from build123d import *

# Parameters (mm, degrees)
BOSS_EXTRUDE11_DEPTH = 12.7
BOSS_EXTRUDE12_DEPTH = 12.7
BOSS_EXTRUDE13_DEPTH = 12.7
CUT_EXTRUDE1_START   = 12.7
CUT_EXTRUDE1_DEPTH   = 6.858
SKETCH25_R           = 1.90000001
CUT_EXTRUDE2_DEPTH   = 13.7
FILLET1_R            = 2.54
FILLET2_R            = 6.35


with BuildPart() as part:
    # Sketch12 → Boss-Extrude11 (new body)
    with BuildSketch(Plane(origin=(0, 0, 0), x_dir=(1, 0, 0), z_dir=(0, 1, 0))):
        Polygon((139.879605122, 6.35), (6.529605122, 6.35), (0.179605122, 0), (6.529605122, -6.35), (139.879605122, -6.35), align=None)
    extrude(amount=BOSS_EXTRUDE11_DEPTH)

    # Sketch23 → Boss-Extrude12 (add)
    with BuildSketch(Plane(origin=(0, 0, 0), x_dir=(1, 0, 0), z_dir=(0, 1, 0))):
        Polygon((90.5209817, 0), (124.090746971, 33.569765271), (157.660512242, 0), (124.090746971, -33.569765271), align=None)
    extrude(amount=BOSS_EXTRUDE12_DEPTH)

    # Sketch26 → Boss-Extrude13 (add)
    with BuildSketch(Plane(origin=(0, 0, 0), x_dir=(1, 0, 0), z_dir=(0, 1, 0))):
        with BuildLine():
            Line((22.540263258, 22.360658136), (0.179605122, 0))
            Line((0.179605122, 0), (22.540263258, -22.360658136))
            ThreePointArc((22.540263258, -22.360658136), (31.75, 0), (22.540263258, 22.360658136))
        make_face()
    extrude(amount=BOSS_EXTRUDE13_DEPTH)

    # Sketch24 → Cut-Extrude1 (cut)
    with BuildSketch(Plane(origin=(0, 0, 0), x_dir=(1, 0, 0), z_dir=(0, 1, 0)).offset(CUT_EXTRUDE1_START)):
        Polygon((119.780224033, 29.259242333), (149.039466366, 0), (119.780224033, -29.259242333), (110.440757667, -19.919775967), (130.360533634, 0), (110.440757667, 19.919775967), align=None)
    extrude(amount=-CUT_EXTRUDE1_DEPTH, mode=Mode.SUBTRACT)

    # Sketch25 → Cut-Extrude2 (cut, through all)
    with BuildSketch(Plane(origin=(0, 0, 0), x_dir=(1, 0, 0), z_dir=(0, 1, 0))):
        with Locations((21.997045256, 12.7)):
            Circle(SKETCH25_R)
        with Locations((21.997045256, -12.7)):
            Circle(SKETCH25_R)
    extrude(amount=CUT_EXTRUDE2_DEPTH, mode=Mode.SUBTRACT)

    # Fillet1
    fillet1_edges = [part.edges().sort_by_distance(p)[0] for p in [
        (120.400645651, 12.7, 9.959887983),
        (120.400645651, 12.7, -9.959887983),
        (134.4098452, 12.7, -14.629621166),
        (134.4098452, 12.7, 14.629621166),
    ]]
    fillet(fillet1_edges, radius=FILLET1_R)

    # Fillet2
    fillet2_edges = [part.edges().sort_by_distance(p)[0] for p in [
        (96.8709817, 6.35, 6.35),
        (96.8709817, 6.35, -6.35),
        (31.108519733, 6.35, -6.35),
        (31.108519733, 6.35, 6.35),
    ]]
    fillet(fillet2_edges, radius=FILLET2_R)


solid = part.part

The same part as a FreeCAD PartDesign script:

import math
import FreeCAD as App
import Part
import Sketcher
Q = App.Units.Quantity


def edges_at(feature, points):
    """Names of the edges that pass closest to the given points."""
    edges = feature.Shape.Edges
    near = lambda p: min(range(len(edges)), key=lambda i: edges[i].distToShape(Part.Vertex(*p))[0])
    return sorted({f"Edge{near(p) + 1}" for p in points})

doc = App.newDocument("Part")
body = doc.addObject("PartDesign::Body", "Body")

# Sketch on XZ plane
sketch1 = body.newObject("Sketcher::SketchObject", "Sketch")
sketch1.AttachmentSupport = (doc.getObject("XZ_Plane"), [""])
sketch1.MapMode = "FlatFace"
sketch1.addGeometry(Part.LineSegment(App.Vector(140, -6, 0), App.Vector(7, -6, 0)), False)
sketch1.addGeometry(Part.LineSegment(App.Vector(7, -6, 0), App.Vector(0, 0, 0)), False)
sketch1.addGeometry(Part.LineSegment(App.Vector(0, 0, 0), App.Vector(7, 6, 0)), False)
sketch1.addGeometry(Part.LineSegment(App.Vector(7, 6, 0), App.Vector(140, 6, 0)), False)
sketch1.addGeometry(Part.LineSegment(App.Vector(140, 6, 0), App.Vector(140, -6, 0)), False)
sketch1.addConstraint(Sketcher.Constraint("Coincident", 0, 2, 1, 1))
sketch1.addConstraint(Sketcher.Constraint("Coincident", 1, 2, 2, 1))
sketch1.addConstraint(Sketcher.Constraint("Coincident", 2, 2, 3, 1))
sketch1.addConstraint(Sketcher.Constraint("Coincident", 3, 2, 4, 1))
sketch1.addConstraint(Sketcher.Constraint("Coincident", 4, 2, 0, 1))
sketch1.addConstraint(Sketcher.Constraint("Horizontal", 0))
sketch1.addConstraint(Sketcher.Constraint("Horizontal", 3))
sketch1.addConstraint(Sketcher.Constraint("Vertical", 4))
sketch1.addConstraint(Sketcher.Constraint("Symmetric", 0, 2, 2, 2, -1))
sketch1.addConstraint(Sketcher.Constraint("PointOnObject", 1, 2, -1))
sketch1.addConstraint(Sketcher.Constraint("Perpendicular", 1, 2))
sketch1.addConstraint(Sketcher.Constraint("DistanceY", 4, 2, 4, 1, Q("0.5 in")))
sketch1.addConstraint(Sketcher.Constraint("DistanceX", 0, 2, 0, 1, Q("5.25 in")))
sketch1.addConstraint(Sketcher.Constraint("DistanceX", -1, 1, 0, 2, Q("6.529605 mm")))
pad1 = body.newObject("PartDesign::Pad", "Pad")
pad1.Profile = sketch1
pad1.Length = Q("0.5 in")
pad1.Reversed = True

# Sketch on XZ plane
sketch2 = body.newObject("Sketcher::SketchObject", "Sketch001")
sketch2.AttachmentSupport = (doc.getObject("XZ_Plane"), [""])
sketch2.MapMode = "FlatFace"
sketch2.addGeometry(Part.LineSegment(App.Vector(124, -34, 0), App.Vector(91, 0, 0)), False)
sketch2.addGeometry(Part.LineSegment(App.Vector(91, 0, 0), App.Vector(124, 34, 0)), False)
sketch2.addGeometry(Part.LineSegment(App.Vector(124, 34, 0), App.Vector(158, 0, 0)), False)
sketch2.addGeometry(Part.LineSegment(App.Vector(158, 0, 0), App.Vector(124, -34, 0)), False)
sketch2.addConstraint(Sketcher.Constraint("Coincident", 0, 2, 1, 1))
sketch2.addConstraint(Sketcher.Constraint("Coincident", 1, 2, 2, 1))
sketch2.addConstraint(Sketcher.Constraint("Coincident", 2, 2, 3, 1))
sketch2.addConstraint(Sketcher.Constraint("Coincident", 3, 2, 0, 1))
sketch2.addConstraint(Sketcher.Constraint("Symmetric", 1, 2, 3, 2, -1))
sketch2.addConstraint(Sketcher.Constraint("PointOnObject", 0, 2, -1))
sketch2.addConstraint(Sketcher.Constraint("PointOnObject", 2, 2, -1))
sketch2.addConstraint(Sketcher.Constraint("Perpendicular", 0, 1))
sketch2.addConstraint(Sketcher.Constraint("Perpendicular", 1, 2))
sketch2.addConstraint(Sketcher.Constraint("DistanceX", -1, 1, 0, 2, Q("90.520982 mm")))
sketch2.addConstraint(Sketcher.Constraint("DistanceX", 0, 2, 2, 2, Q("67.139531 mm")))
pad2 = body.newObject("PartDesign::Pad", "Pad001")
pad2.Profile = sketch2
pad2.Length = Q("0.5 in")
pad2.Reversed = True

# Sketch on XZ plane
sketch3 = body.newObject("Sketcher::SketchObject", "Sketch002")
sketch3.AttachmentSupport = (doc.getObject("XZ_Plane"), [""])
sketch3.MapMode = "FlatFace"
sketch3.addGeometry(Part.LineSegment(App.Vector(23, -22, 0), App.Vector(0, 0, 0)), False)
sketch3.addGeometry(Part.LineSegment(App.Vector(0, 0, 0), App.Vector(23, 22, 0)), False)
sketch3.addGeometry(Part.ArcOfCircle(Part.Circle(App.Vector(0, 0, 0), App.Vector(0, 0, 1), 32), math.radians(-45), math.radians(45)), False)
sketch3.addConstraint(Sketcher.Constraint("Coincident", 0, 2, 1, 1))
sketch3.addConstraint(Sketcher.Constraint("Coincident", 1, 2, 2, 2))
sketch3.addConstraint(Sketcher.Constraint("Coincident", 2, 1, 0, 1))
sketch3.addConstraint(Sketcher.Constraint("Coincident", 2, 3, -1, 1))
sketch3.addConstraint(Sketcher.Constraint("PointOnObject", 0, 2, -1))
sketch3.addConstraint(Sketcher.Constraint("Perpendicular", 0, 1))
sketch3.addConstraint(Sketcher.Constraint("Vertical", 1, 2, 2, 1))
sketch3.addConstraint(Sketcher.Constraint("Radius", 2, Q("1.25 in")))
sketch3.addConstraint(Sketcher.Constraint("DistanceY", -1, 1, 1, 2, Q("22.360658 mm")))
pad3 = body.newObject("PartDesign::Pad", "Pad002")
pad3.Profile = sketch3
pad3.Length = Q("0.5 in")
pad3.Reversed = True

# Sketch on XZ plane
sketch4 = body.newObject("Sketcher::SketchObject", "Sketch003")
sketch4.AttachmentSupport = (doc.getObject("XZ_Plane"), [""])
sketch4.MapMode = "FlatFace"
sketch4.AttachmentOffset = App.Placement(App.Vector(0, 0, -0.5 * 25.4), App.Rotation())
sketch4.addGeometry(Part.LineSegment(App.Vector(149, 0, 0), App.Vector(120, -29, 0)), False)
sketch4.addGeometry(Part.LineSegment(App.Vector(120, -29, 0), App.Vector(110, -20, 0)), False)
sketch4.addGeometry(Part.LineSegment(App.Vector(110, -20, 0), App.Vector(130, 0, 0)), False)
sketch4.addGeometry(Part.LineSegment(App.Vector(130, 0, 0), App.Vector(110, 20, 0)), False)
sketch4.addGeometry(Part.LineSegment(App.Vector(110, 20, 0), App.Vector(120, 29, 0)), False)
sketch4.addGeometry(Part.LineSegment(App.Vector(120, 29, 0), App.Vector(149, 0, 0)), False)
sketch4.addConstraint(Sketcher.Constraint("Coincident", 0, 2, 1, 1))
sketch4.addConstraint(Sketcher.Constraint("Coincident", 1, 2, 2, 1))
sketch4.addConstraint(Sketcher.Constraint("Coincident", 2, 2, 3, 1))
sketch4.addConstraint(Sketcher.Constraint("Coincident", 3, 2, 4, 1))
sketch4.addConstraint(Sketcher.Constraint("Coincident", 4, 2, 5, 1))
sketch4.addConstraint(Sketcher.Constraint("Coincident", 5, 2, 0, 1))
sketch4.addConstraint(Sketcher.Constraint("Symmetric", 1, 2, 3, 2, -1))
sketch4.addConstraint(Sketcher.Constraint("Symmetric", 0, 2, 4, 2, -1))
sketch4.addConstraint(Sketcher.Constraint("PointOnObject", 2, 2, -1))
sketch4.addConstraint(Sketcher.Constraint("PointOnObject", 5, 2, -1))
sketch4.addConstraint(Sketcher.Constraint("Perpendicular", 0, 1))
sketch4.addConstraint(Sketcher.Constraint("Perpendicular", 1, 2))
sketch4.addConstraint(Sketcher.Constraint("Perpendicular", 2, 3))
sketch4.addConstraint(Sketcher.Constraint("Distance", 1, Q("0.52 in")))
sketch4.addConstraint(Sketcher.Constraint("DistanceX", 0, 2, 2, 2, Q("10.58031 mm")))
sketch4.addConstraint(Sketcher.Constraint("DistanceX", -1, 1, 0, 2, Q("119.780224 mm")))
pocket1 = body.newObject("PartDesign::Pocket", "Pocket")
pocket1.Profile = sketch4
pocket1.Length = Q("0.27 in")
pocket1.Reversed = True

# Sketch on XZ plane
sketch5 = body.newObject("Sketcher::SketchObject", "Sketch004")
sketch5.AttachmentSupport = (doc.getObject("XZ_Plane"), [""])
sketch5.MapMode = "FlatFace"
sketch5.addGeometry(Part.Circle(App.Vector(22, -12.7, 0), App.Vector(0, 0, 1), 1.9), False)
sketch5.addGeometry(Part.Circle(App.Vector(22, 12.7, 0), App.Vector(0, 0, 1), 1.9), False)
sketch5.addConstraint(Sketcher.Constraint("Equal", 0, 1))
sketch5.addConstraint(Sketcher.Constraint("Symmetric", 0, 3, 1, 3, -1))
sketch5.addConstraint(Sketcher.Constraint("DistanceY", 0, 3, 1, 3, Q("1 in")))
sketch5.addConstraint(Sketcher.Constraint("Diameter", 0, Q("3.8 mm")))
sketch5.addConstraint(Sketcher.Constraint("DistanceX", -1, 1, 0, 3, Q("21.997045 mm")))
pocket2 = body.newObject("PartDesign::Pocket", "Pocket001")
pocket2.Profile = sketch5
pocket2.Type = "ThroughAll"
doc.recompute()

fillet = body.newObject("PartDesign::Fillet", "Fillet")
fillet.Base = (pocket2, edges_at(pocket2, [
    (120.401, 12.7, 9.96),
    (120.401, 12.7, -9.96),
    (134.41, 12.7, -14.63),
    (134.41, 12.7, 14.63),
]))
fillet.Radius = Q("0.1 in")
doc.recompute()

fillet2 = body.newObject("PartDesign::Fillet", "Fillet001")
fillet2.Base = (fillet, edges_at(fillet, [
    (96.871, 6.35, 6.35),
    (96.871, 6.35, -6.35),
    (31.109, 6.35, -6.35),
    (31.109, 6.35, 6.35),
]))
fillet2.Radius = Q("0.25 in")

doc.recompute()
